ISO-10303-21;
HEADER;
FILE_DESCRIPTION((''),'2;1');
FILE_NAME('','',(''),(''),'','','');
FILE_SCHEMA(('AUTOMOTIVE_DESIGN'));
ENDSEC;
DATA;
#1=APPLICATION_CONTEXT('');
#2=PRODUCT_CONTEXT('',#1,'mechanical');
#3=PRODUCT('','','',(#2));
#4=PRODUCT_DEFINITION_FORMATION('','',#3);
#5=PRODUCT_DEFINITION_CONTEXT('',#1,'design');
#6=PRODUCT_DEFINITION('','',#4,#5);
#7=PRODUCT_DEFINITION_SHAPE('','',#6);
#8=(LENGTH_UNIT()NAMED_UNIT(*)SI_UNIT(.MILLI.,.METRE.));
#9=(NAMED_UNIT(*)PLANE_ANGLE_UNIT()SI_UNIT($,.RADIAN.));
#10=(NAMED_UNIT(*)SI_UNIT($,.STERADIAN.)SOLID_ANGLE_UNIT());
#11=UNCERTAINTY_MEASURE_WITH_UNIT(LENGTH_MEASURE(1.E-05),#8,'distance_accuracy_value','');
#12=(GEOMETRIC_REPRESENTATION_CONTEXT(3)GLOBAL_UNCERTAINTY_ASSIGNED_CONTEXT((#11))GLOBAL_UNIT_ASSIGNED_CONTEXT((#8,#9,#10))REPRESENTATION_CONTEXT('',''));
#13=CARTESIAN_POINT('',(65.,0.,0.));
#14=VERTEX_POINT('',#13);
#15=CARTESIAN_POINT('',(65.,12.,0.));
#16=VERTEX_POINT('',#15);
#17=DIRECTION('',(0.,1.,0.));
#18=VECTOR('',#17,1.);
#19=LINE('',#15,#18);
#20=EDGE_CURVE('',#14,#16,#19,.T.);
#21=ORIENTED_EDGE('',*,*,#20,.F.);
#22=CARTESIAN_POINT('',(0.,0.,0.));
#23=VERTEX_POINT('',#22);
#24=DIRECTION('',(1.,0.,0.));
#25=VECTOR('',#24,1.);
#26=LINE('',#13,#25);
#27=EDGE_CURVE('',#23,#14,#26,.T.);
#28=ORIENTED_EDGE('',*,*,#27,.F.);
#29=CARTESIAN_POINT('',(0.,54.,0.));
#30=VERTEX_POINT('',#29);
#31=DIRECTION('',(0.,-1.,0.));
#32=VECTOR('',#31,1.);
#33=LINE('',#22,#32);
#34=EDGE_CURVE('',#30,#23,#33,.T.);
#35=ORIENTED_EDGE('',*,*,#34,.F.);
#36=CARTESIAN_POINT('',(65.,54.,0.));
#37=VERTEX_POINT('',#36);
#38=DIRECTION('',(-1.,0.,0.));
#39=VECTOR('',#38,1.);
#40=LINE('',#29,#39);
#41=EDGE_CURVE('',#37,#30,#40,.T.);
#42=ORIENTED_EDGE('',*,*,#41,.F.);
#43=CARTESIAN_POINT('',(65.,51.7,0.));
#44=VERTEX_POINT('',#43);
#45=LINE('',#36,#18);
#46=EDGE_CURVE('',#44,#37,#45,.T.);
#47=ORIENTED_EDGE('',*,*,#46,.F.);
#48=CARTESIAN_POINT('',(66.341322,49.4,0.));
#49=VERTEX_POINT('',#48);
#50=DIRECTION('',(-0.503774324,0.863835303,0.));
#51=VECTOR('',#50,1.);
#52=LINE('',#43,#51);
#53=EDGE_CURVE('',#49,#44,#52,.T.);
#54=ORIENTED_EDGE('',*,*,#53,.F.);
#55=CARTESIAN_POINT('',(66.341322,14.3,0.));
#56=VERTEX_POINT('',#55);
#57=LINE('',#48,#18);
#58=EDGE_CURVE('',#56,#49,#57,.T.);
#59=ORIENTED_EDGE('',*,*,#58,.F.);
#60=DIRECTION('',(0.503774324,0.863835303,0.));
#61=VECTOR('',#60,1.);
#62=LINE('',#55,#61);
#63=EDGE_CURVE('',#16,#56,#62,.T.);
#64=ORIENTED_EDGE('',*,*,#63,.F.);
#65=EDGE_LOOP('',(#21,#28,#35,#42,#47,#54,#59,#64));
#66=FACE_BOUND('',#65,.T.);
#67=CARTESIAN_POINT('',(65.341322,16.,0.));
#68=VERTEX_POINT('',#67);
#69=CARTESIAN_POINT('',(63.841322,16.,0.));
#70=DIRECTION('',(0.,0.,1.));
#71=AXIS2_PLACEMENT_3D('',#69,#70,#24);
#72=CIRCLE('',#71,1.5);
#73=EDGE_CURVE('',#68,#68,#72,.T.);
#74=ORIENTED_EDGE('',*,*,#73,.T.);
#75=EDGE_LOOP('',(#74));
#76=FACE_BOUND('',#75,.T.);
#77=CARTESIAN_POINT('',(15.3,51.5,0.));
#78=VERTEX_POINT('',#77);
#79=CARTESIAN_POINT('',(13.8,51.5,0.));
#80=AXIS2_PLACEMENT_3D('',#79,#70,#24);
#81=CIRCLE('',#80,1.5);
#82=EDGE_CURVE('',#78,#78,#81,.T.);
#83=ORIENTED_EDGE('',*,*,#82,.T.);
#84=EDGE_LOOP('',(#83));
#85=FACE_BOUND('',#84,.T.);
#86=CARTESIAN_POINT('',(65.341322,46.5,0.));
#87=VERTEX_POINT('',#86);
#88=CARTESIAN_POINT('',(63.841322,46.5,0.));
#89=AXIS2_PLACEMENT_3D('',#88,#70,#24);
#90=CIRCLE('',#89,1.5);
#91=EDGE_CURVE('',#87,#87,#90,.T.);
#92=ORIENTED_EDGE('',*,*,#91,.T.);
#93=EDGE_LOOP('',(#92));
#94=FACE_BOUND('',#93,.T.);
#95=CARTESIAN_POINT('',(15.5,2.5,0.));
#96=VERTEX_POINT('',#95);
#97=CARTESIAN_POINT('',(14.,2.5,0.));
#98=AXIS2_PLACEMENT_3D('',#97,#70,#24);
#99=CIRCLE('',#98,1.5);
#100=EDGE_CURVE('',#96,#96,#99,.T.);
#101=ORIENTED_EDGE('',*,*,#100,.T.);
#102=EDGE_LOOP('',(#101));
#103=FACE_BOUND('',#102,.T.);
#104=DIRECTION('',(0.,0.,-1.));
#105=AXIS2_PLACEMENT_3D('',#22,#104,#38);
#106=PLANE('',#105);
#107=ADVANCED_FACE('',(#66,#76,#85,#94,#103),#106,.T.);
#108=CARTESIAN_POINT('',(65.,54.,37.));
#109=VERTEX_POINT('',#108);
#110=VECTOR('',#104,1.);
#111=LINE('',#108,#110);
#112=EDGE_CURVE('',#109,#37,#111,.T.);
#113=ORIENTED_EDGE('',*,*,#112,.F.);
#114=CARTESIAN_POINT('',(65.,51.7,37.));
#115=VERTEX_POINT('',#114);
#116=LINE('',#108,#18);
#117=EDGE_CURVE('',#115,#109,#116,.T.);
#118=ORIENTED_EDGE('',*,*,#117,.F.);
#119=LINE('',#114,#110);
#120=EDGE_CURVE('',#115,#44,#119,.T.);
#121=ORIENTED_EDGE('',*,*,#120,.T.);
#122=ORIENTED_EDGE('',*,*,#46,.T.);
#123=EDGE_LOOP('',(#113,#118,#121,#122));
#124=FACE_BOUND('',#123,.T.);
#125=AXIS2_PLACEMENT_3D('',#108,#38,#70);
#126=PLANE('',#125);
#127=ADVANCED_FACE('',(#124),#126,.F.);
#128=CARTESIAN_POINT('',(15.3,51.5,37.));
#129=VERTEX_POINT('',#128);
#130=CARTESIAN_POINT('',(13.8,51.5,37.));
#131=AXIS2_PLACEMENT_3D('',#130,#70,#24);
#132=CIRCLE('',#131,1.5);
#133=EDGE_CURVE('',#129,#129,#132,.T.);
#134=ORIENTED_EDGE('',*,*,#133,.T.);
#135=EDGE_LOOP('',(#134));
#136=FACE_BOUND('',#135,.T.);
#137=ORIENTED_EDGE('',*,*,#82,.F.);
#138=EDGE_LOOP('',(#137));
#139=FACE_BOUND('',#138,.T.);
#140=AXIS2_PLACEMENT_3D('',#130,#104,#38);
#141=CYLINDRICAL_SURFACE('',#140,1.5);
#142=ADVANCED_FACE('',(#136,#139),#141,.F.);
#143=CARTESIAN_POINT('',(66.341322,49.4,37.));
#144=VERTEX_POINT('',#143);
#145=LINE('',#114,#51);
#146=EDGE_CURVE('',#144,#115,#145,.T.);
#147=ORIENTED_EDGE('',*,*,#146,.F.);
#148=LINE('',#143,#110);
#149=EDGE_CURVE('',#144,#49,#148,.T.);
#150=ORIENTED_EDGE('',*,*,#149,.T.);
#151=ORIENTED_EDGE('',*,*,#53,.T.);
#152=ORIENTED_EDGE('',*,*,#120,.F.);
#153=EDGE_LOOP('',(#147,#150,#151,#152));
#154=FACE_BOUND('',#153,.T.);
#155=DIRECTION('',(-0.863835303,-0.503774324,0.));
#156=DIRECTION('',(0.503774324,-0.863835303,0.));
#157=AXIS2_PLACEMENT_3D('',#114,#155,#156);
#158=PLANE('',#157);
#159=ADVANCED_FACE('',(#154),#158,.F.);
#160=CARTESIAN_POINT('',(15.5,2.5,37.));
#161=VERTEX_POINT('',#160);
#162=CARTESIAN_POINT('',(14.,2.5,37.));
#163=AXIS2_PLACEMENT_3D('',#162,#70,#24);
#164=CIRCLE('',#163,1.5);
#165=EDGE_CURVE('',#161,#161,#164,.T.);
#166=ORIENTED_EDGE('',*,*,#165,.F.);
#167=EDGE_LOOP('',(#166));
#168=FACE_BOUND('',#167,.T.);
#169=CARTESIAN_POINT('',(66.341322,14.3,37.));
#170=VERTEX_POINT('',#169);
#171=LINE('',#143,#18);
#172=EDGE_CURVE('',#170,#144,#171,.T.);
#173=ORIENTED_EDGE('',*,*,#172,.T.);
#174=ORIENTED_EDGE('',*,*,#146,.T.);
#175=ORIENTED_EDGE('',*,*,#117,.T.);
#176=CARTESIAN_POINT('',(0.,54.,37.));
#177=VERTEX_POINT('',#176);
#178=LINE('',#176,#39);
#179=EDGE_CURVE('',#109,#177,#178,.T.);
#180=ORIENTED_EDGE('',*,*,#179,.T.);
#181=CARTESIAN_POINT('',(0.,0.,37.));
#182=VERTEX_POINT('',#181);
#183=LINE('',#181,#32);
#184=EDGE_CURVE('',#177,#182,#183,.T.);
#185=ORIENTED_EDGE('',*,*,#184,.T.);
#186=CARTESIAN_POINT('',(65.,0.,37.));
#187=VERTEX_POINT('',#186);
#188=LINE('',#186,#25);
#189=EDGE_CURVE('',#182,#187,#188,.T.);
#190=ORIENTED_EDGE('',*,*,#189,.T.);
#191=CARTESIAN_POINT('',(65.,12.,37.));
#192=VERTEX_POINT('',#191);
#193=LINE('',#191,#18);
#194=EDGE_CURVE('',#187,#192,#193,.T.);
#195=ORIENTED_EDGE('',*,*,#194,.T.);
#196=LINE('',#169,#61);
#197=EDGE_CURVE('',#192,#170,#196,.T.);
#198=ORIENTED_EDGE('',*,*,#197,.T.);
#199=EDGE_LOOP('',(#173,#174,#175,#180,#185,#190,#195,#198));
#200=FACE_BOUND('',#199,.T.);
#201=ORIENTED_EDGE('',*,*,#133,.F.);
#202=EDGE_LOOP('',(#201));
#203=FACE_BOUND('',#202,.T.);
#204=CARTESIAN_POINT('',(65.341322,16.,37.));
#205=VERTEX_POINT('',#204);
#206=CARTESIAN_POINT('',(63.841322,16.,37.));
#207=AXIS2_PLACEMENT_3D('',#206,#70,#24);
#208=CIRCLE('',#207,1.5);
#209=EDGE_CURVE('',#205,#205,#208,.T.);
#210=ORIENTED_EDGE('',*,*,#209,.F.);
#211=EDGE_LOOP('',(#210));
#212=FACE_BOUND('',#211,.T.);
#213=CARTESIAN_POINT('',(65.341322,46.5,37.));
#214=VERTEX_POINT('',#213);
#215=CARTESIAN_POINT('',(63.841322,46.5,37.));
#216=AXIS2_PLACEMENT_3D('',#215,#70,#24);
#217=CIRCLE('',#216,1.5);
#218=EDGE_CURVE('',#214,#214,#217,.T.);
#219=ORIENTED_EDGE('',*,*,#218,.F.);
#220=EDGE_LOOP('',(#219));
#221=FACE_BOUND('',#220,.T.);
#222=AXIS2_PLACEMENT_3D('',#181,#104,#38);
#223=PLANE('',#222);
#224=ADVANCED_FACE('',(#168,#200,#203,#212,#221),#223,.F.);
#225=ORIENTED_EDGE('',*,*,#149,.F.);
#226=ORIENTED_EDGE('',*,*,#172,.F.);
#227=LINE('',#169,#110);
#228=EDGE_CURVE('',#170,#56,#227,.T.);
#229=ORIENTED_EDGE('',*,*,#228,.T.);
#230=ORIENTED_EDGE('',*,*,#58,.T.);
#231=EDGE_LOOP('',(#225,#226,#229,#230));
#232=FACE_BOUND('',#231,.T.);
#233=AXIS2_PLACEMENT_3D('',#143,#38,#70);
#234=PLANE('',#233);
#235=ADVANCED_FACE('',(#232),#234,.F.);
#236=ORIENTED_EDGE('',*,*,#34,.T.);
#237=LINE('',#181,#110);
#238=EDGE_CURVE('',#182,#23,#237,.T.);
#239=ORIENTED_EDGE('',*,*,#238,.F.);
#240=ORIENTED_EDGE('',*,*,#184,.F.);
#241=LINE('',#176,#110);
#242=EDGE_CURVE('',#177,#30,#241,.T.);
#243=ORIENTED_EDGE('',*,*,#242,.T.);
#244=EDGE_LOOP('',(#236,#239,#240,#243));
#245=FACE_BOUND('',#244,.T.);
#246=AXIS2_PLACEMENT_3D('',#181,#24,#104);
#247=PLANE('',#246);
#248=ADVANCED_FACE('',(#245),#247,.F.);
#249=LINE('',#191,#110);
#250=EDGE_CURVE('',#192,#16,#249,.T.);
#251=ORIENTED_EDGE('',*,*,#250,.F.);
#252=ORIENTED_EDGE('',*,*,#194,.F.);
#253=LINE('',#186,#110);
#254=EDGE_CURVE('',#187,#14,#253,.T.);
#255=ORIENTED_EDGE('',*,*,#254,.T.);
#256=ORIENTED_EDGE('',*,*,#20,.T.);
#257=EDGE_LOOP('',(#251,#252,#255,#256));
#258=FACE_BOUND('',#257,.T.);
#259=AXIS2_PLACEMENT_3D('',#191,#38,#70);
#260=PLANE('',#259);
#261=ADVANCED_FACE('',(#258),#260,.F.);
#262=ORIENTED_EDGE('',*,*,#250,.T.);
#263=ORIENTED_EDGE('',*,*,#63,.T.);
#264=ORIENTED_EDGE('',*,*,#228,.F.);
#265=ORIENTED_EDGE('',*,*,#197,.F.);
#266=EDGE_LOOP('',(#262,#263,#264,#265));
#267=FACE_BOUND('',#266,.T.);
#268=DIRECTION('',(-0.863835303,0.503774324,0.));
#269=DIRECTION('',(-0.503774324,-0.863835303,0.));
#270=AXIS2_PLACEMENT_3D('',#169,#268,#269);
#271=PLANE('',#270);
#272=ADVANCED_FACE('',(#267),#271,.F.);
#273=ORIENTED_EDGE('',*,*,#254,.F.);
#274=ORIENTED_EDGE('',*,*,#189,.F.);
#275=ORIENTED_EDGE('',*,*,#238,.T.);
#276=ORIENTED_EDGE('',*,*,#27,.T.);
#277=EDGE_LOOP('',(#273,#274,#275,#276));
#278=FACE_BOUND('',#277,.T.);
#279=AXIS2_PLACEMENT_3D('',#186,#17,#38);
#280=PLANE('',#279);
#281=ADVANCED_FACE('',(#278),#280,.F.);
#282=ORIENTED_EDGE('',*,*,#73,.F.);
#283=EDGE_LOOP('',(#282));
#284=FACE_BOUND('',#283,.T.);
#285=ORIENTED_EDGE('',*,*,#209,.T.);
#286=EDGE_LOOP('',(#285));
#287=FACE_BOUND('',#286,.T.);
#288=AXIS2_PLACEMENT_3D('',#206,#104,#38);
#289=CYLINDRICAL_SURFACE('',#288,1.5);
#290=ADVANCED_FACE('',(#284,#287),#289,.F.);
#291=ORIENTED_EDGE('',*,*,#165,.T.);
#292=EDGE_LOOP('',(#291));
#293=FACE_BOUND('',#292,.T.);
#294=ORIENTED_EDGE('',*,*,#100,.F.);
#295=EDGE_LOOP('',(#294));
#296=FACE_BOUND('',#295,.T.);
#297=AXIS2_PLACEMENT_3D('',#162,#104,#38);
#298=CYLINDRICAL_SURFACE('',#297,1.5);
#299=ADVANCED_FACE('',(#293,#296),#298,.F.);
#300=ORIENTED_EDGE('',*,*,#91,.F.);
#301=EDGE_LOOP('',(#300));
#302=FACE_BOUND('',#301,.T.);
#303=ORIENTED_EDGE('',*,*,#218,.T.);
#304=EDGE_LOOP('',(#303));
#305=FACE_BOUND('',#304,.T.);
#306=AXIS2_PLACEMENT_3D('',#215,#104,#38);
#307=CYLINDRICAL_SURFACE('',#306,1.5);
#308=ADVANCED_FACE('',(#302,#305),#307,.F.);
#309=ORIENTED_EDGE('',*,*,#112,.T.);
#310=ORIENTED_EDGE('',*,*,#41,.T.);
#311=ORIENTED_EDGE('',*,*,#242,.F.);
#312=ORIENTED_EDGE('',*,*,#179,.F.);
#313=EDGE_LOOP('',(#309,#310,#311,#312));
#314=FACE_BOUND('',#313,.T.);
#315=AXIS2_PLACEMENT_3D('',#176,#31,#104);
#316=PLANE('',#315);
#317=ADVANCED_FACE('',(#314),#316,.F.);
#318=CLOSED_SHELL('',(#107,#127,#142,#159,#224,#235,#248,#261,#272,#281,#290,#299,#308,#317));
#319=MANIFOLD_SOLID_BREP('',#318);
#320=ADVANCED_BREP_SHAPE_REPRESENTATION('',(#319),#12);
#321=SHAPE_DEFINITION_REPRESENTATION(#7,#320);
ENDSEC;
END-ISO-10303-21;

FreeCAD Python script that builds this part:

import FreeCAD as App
import Part
import Sketcher

V = App.Vector


def add_polygon(sketch, points):
    """Adds a closed chain of lines whose ends are joined by coincident constraints."""
    first, n = sketch.GeometryCount, len(points)
    for a, b in zip(points, points[1:] + points[:1]):
        sketch.addGeometry(Part.LineSegment(App.Vector(*a, 0), App.Vector(*b, 0)), False)
    for i in range(n):
        sketch.addConstraint(Sketcher.Constraint("Coincident", first + i, 2, first + (i + 1) % n, 1))

doc = App.newDocument("Part")
body = doc.addObject("PartDesign::Body", "Body")

# Sketch on XY plane
sketch1 = body.newObject("Sketcher::SketchObject", "Sketch")
sketch1.AttachmentSupport = (doc.getObject("XY_Plane"), [""])
sketch1.MapMode = "FlatFace"
add_polygon(sketch1, [(0, 54), (0, 0), (65, 0), (65, 12), (66.3, 14.3), (66.3, 49.4), (65, 51.7), (65, 54)])  # lines 0-7
sketch1.addGeometry(Part.Circle(V(63.8, 16, 0), V(0, 0, 1), 1.5), False)  # 8
sketch1.addGeometry(Part.Circle(V(14, 2.5, 0), V(0, 0, 1), 1.5), False)  # 9
sketch1.addGeometry(Part.Circle(V(63.8, 46.5, 0), V(0, 0, 1), 1.5), False)  # 10
sketch1.addGeometry(Part.Circle(V(13.8, 51.5, 0), V(0, 0, 1), 1.5), False)  # 11
sketch1.addConstraint(Sketcher.Constraint("Vertical", 0))
sketch1.addConstraint(Sketcher.Constraint("Horizontal", 1))
sketch1.addConstraint(Sketcher.Constraint("Vertical", 2))
sketch1.addConstraint(Sketcher.Constraint("Vertical", 4))
sketch1.addConstraint(Sketcher.Constraint("Vertical", 6))
sketch1.addConstraint(Sketcher.Constraint("Horizontal", 7))
sketch1.addConstraint(Sketcher.Constraint("Coincident", 0, 2, -1, 1))
sketch1.addConstraint(Sketcher.Constraint("Equal", 8, 9))
sketch1.addConstraint(Sketcher.Constraint("Equal", 9, 10))
sketch1.addConstraint(Sketcher.Constraint("Equal", 10, 11))
sketch1.addConstraint(Sketcher.Constraint("Vertical", 8, 3, 10, 3))
sketch1.addConstraint(Sketcher.Constraint("Vertical", 2, 2, 5, 2))
sketch1.addConstraint(Sketcher.Constraint("Equal", 3, 5))
sketch1.addConstraint(Sketcher.Constraint("Diameter", 8, 3.0))
sketch1.addConstraint(Sketcher.Constraint("DistanceX", 1, 1, 1, 2, 65.0))
sketch1.addConstraint(Sketcher.Constraint("DistanceY", 0, 2, 0, 1, 54.0))
sketch1.addConstraint(Sketcher.Constraint("DistanceY", 2, 1, 2, 2, 12.0))
sketch1.addConstraint(Sketcher.Constraint("DistanceY", 4, 1, 4, 2, 35.1))
sketch1.addConstraint(Sketcher.Constraint("DistanceY", 6, 1, 6, 2, 2.3))
sketch1.addConstraint(Sketcher.Constraint("DistanceY", -1, 1, 8, 3, 16.0))
sketch1.addConstraint(Sketcher.Constraint("DistanceX", -1, 1, 9, 3, 14.0))
sketch1.addConstraint(Sketcher.Constraint("DistanceY", 9, 3, 10, 3, 44.0))
sketch1.addConstraint(Sketcher.Constraint("DistanceY", 9, 3, 11, 3, 49.0))
sketch1.addConstraint(Sketcher.Constraint("DistanceY", -1, 1, 9, 3, 2.5))
sketch1.addConstraint(Sketcher.Constraint("DistanceX", -1, 1, 11, 3, 13.8))
sketch1.addConstraint(Sketcher.Constraint("DistanceX", 8, 3, 3, 2, 2.5))
sketch1.addConstraint(Sketcher.Constraint("DistanceX", -1, 1, 8, 3, 63.841322))
pad1 = body.newObject("PartDesign::Pad", "Pad")
pad1.Profile = sketch1
pad1.Length = 37

doc.recompute()
